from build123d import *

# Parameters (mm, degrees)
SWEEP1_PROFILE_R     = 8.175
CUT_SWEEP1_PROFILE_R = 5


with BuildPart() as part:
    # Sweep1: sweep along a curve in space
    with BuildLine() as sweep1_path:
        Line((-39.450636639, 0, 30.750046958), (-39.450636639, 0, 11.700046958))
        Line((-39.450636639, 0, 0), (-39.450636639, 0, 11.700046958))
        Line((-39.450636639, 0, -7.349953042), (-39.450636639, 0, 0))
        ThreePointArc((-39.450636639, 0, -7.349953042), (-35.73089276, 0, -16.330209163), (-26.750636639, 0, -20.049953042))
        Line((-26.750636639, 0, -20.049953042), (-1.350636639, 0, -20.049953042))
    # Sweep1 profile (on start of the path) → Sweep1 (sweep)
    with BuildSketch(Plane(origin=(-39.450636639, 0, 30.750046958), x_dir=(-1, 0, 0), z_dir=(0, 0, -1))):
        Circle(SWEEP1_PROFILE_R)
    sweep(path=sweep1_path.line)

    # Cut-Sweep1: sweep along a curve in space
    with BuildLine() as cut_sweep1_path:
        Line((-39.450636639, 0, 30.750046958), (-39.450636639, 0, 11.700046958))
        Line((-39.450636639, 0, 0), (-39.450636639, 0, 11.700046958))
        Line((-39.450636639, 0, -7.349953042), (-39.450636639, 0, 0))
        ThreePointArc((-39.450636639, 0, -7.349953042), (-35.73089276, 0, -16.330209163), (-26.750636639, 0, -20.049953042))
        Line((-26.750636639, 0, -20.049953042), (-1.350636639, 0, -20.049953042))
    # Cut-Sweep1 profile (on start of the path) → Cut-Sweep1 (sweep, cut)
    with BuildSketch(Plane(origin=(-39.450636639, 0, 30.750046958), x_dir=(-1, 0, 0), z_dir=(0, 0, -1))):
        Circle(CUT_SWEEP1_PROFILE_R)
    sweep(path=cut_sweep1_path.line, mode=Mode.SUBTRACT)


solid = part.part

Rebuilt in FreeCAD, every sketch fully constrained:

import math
import FreeCAD as App
import Part
import Sketcher
Q = App.Units.Quantity

doc = App.newDocument("Part")
body = doc.addObject("PartDesign::Body", "Body")

# Sketch on XY plane
sketch1 = body.newObject("Sketcher::SketchObject", "Sketch")
sketch1.AttachmentSupport = (doc.getObject("XY_Plane"), [""])
sketch1.MapMode = "FlatFace"
sketch1.AttachmentOffset = App.Placement(App.Vector(0, 0, 30.750047), App.Rotation())
sketch1.addGeometry(Part.Circle(App.Vector(-39.450637, 0, 0), App.Vector(0, 0, 1), 8.175), False)
sketch1.addConstraint(Sketcher.Constraint("PointOnObject", 0, 3, -1))
sketch1.addConstraint(Sketcher.Constraint("Diameter", 0, Q("16.35 mm")))
sketch1.addConstraint(Sketcher.Constraint("DistanceX", 0, 3, -1, 1, Q("39.450637 mm")))

# Sketch on XZ plane
sketch2 = body.newObject("Sketcher::SketchObject", "Sketch001")
sketch2.AttachmentSupport = (doc.getObject("XZ_Plane"), [""])
sketch2.MapMode = "FlatFace"
sketch2.addGeometry(Part.LineSegment(App.Vector(-39.450637, 30.750047, 0), App.Vector(-39.450637, 11.700047, 0)), False)
sketch2.addGeometry(Part.LineSegment(App.Vector(-39.450637, 11.700047, 0), App.Vector(-39.450637, -7.349953, 0)), False)
sketch2.addGeometry(Part.ArcOfCircle(Part.Circle(App.Vector(-26.750637, -7.349953, 0), App.Vector(0, 0, 1), 12.7), math.radians(180), math.radians(270)), False)
sketch2.addGeometry(Part.LineSegment(App.Vector(-26.750637, -20.049953, 0), App.Vector(-1.350637, -20.049953, 0)), False)
sketch2.addConstraint(Sketcher.Constraint("Coincident", 0, 2, 1, 1))
sketch2.addConstraint(Sketcher.Constraint("Tangent", 1, 2, 2, 1))
sketch2.addConstraint(Sketcher.Constraint("Tangent", 2, 2, 3, 1))
sketch2.addConstraint(Sketcher.Constraint("Vertical", 0))
sketch2.addConstraint(Sketcher.Constraint("Vertical", 1))
sketch2.addConstraint(Sketcher.Constraint("Horizontal", 3))
sketch2.addConstraint(Sketcher.Constraint("Equal", 0, 1))
sketch2.addConstraint(Sketcher.Constraint("Radius", 2, Q("0.5 in")))
sketch2.addConstraint(Sketcher.Constraint("DistanceX", 3, 1, 3, 2, Q("1 in")))
sketch2.addConstraint(Sketcher.Constraint("DistanceY", 2, 2, 0, 1, Q("2 in")))
sketch2.addConstraint(Sketcher.Constraint("DistanceX", 2, 3, -1, 1, Q("26.750637 mm")))
sketch2.addConstraint(Sketcher.Constraint("DistanceY", 2, 3, -1, 1, Q("7.349953 mm")))
doc.recompute()

additivepipe = body.newObject("PartDesign::AdditivePipe", "AdditivePipe")
additivepipe.Profile = sketch1
additivepipe.Spine = (sketch2, ["Edge1", "Edge2", "Edge3", "Edge4"])

# Sketch on XY plane
sketch3 = body.newObject("Sketcher::SketchObject", "Sketch002")
sketch3.AttachmentSupport = (doc.getObject("XY_Plane"), [""])
sketch3.MapMode = "FlatFace"
sketch3.AttachmentOffset = App.Placement(App.Vector(0, 0, 30.750047), App.Rotation())
sketch3.addGeometry(Part.Circle(App.Vector(-39.450637, 0, 0), App.Vector(0, 0, 1), 5), False)
sketch3.addConstraint(Sketcher.Constraint("PointOnObject", 0, 3, -1))
sketch3.addConstraint(Sketcher.Constraint("Diameter", 0, Q("10 mm")))
sketch3.addConstraint(Sketcher.Constraint("DistanceX", 0, 3, -1, 1, Q("39.450637 mm")))

# Sketch on XZ plane
sketch4 = body.newObject("Sketcher::SketchObject", "Sketch003")
sketch4.AttachmentSupport = (doc.getObject("XZ_Plane"), [""])
sketch4.MapMode = "FlatFace"
sketch4.addGeometry(Part.LineSegment(App.Vector(-39.450637, 30.750047, 0), App.Vector(-39.450637, 11.700047, 0)), False)
sketch4.addGeometry(Part.LineSegment(App.Vector(-39.450637, 11.700047, 0), App.Vector(-39.450637, -7.349953, 0)), False)
sketch4.addGeometry(Part.ArcOfCircle(Part.Circle(App.Vector(-26.750637, -7.349953, 0), App.Vector(0, 0, 1), 12.7), math.radians(180), math.radians(270)), False)
sketch4.addGeometry(Part.LineSegment(App.Vector(-26.750637, -20.049953, 0), App.Vector(-1.350637, -20.049953, 0)), False)
sketch4.addConstraint(Sketcher.Constraint("Coincident", 0, 2, 1, 1))
sketch4.addConstraint(Sketcher.Constraint("Tangent", 1, 2, 2, 1))
sketch4.addConstraint(Sketcher.Constraint("Tangent", 2, 2, 3, 1))
sketch4.addConstraint(Sketcher.Constraint("Vertical", 0))
sketch4.addConstraint(Sketcher.Constraint("Vertical", 1))
sketch4.addConstraint(Sketcher.Constraint("Horizontal", 3))
sketch4.addConstraint(Sketcher.Constraint("Equal", 0, 1))
sketch4.addConstraint(Sketcher.Constraint("Radius", 2, Q("0.5 in")))
sketch4.addConstraint(Sketcher.Constraint("DistanceX", 3, 1, 3, 2, Q("1 in")))
sketch4.addConstraint(Sketcher.Constraint("DistanceY", 2, 2, 0, 1, Q("2 in")))
sketch4.addConstraint(Sketcher.Constraint("DistanceX", 2, 3, -1, 1, Q("26.750637 mm")))
sketch4.addConstraint(Sketcher.Constraint("DistanceY", 2, 3, -1, 1, Q("7.349953 mm")))
doc.recompute()

subtractivepipe = body.newObject("PartDesign::SubtractivePipe", "SubtractivePipe")
subtractivepipe.Profile = sketch3
subtractivepipe.Spine = (sketch4, ["Edge1", "Edge2", "Edge3", "Edge4"])

doc.recompute()
